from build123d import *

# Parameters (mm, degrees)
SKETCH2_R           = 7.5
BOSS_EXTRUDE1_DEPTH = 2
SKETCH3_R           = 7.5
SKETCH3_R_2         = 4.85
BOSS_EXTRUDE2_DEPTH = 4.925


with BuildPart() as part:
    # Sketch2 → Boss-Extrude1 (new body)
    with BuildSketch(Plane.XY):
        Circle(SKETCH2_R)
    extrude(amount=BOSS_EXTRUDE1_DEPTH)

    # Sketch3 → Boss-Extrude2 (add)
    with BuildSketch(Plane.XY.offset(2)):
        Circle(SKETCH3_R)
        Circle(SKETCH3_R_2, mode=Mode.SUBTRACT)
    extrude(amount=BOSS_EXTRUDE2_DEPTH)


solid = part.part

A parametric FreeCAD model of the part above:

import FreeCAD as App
import Part
import Sketcher
from FreeCAD import Vector
Q = App.Units.Quantity

doc = App.newDocument("Part")
params = doc.addObject("Spreadsheet::Sheet", "Params")
for row, (alias, value) in enumerate([
    ("sketch1_diameter", "15 mm"),
    ("pad1_length", "2 mm"),
    ("sketch2_diameter", "15 mm"),
    ("sketch2_diameter2", "9.7 mm"),
    ("pad2_length", "4.925 mm"),
], start=1):
    params.set(f"A{row}", alias)
    params.set(f"B{row}", "=" + value)
    params.setAlias(f"B{row}", alias)

body = doc.addObject("PartDesign::Body", "Body")

sketch1 = doc.addObject("Sketcher::SketchObject", "Sketch")
body.addObject(sketch1)
sketch1.AttachmentSupport = (doc.XY_Plane, [""])
sketch1.MapMode = "FlatFace"
sketch1.addGeometry(Part.Circle(Vector(0, 0, 0), Vector(0, 0, 1), 8), False)
sketch1.addConstraint(Sketcher.Constraint("Coincident", 0, 3, -1, 1))
sketch1.addConstraint(Sketcher.Constraint("Diameter", 0, Q("15 mm")))
sketch1.setExpression("Constraints[1]", "Params.sketch1_diameter")
pad1 = doc.addObject("PartDesign::Pad", "Pad")
body.addObject(pad1)
pad1.Profile = sketch1
pad1.setExpression("Length", "Params.pad1_length")

sketch2 = doc.addObject("Sketcher::SketchObject", "Sketch001")
body.addObject(sketch2)
sketch2.AttachmentSupport = (doc.XY_Plane, [""])
sketch2.MapMode = "FlatFace"
sketch2.AttachmentOffset = App.Placement(Vector(0, 0, 2), App.Rotation())
sketch2.addGeometry(Part.Circle(Vector(0, 0, 0), Vector(0, 0, 1), 7.5), False)
sketch2.addGeometry(Part.Circle(Vector(0, 0, 0), Vector(0, 0, 1), 4.8), False)
sketch2.addConstraint(Sketcher.Constraint("Coincident", 0, 3, -1, 1))
sketch2.addConstraint(Sketcher.Constraint("Coincident", 1, 3, -1, 1))
sketch2.addConstraint(Sketcher.Constraint("Diameter", 0, Q("15 mm")))
sketch2.addConstraint(Sketcher.Constraint("Diameter", 1, Q("9.7 mm")))
sketch2.setExpression("Constraints[2]", "Params.sketch2_diameter")
sketch2.setExpression("Constraints[3]", "Params.sketch2_diameter2")
pad2 = doc.addObject("PartDesign::Pad", "Pad001")
body.addObject(pad2)
pad2.Profile = sketch2
pad2.setExpression("Length", "Params.pad2_length")

doc.recompute()
